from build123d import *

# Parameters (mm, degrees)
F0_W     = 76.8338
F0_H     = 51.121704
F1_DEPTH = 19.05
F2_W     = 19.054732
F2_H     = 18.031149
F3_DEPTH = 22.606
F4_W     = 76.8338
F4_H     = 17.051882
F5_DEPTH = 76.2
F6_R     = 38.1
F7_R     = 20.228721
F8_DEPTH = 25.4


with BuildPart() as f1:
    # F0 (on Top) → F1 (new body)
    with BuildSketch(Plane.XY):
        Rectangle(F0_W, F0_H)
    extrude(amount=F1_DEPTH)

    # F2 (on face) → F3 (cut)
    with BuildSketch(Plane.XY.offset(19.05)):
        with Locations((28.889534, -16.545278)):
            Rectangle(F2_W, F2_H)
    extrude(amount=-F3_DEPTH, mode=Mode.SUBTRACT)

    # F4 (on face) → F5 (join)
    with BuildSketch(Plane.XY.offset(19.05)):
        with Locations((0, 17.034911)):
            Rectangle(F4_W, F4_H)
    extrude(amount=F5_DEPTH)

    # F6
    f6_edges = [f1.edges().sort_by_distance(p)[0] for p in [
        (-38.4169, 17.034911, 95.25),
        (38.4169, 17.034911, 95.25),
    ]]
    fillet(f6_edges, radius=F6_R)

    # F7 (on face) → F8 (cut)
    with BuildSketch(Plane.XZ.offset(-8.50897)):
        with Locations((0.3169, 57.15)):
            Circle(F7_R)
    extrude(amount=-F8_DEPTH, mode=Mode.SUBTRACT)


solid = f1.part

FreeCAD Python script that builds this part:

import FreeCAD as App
import Part
import Sketcher
Q = App.Units.Quantity


def edges_at(feature, points):
    """Names of the edges that pass closest to the given points."""
    edges = feature.Shape.Edges
    near = lambda p: min(range(len(edges)), key=lambda i: edges[i].distToShape(Part.Vertex(*p))[0])
    return sorted({f"Edge{near(p) + 1}" for p in points})


def add_polygon(sketch, points):
    """Adds a closed chain of lines whose ends are joined by coincident constraints."""
    first, n = sketch.GeometryCount, len(points)
    for a, b in zip(points, points[1:] + points[:1]):
        sketch.addGeometry(Part.LineSegment(App.Vector(*a, 0), App.Vector(*b, 0)), False)
    for i in range(n):
        sketch.addConstraint(Sketcher.Constraint("Coincident", first + i, 2, first + (i + 1) % n, 1))

doc = App.newDocument("Part")
body = doc.addObject("PartDesign::Body", "Body")

# Sketch on XY plane
sketch1 = body.newObject("Sketcher::SketchObject", "Sketch")
sketch1.AttachmentSupport = (doc.getObject("XY_Plane"), [""])
sketch1.MapMode = "FlatFace"
add_polygon(sketch1, [(-38, 26), (-38, -26), (38, -26), (38, 26)])  # lines 0-3
sketch1.addConstraint([
    Sketcher.Constraint("Vertical", 0),
    Sketcher.Constraint("Horizontal", 1),
    Sketcher.Constraint("Vertical", 2),
    Sketcher.Constraint("Horizontal", 3),
    Sketcher.Constraint("Symmetric", 0, 2, 2, 2, -1, 1),
    Sketcher.Constraint("DistanceX", 1, 1, 1, 2, 76.8338),
    Sketcher.Constraint("DistanceY", 0, 2, 0, 1, 51.121704),
])
pad1 = body.newObject("PartDesign::Pad", "Pad")
pad1.Profile = sketch1
pad1.Length = Q("0.75 in")

# Sketch on XY plane
sketch2 = body.newObject("Sketcher::SketchObject", "Sketch001")
sketch2.AttachmentSupport = (doc.getObject("XY_Plane"), [""])
sketch2.MapMode = "FlatFace"
sketch2.AttachmentOffset = App.Placement(App.Vector(0, 0, 0.75 * 25.4), App.Rotation())
add_polygon(sketch2, [(19, -8), (19, -26), (38, -26), (38, -8)])  # lines 0-3
sketch2.addConstraint([
    Sketcher.Constraint("Vertical", 0),
    Sketcher.Constraint("Horizontal", 1),
    Sketcher.Constraint("Vertical", 2),
    Sketcher.Constraint("Horizontal", 3),
    Sketcher.Constraint("DistanceX", 1, 1, 1, 2, 19.054732),
    Sketcher.Constraint("DistanceY", 0, 2, 0, 1, 18.031149),
    Sketcher.Constraint("DistanceX", -1, 1, 1, 2, 38.4169),
    Sketcher.Constraint("DistanceY", 0, 2, -1, 1, 25.560852),
])
pocket1 = body.newObject("PartDesign::Pocket", "Pocket")
pocket1.Profile = sketch2
pocket1.Length = Q("0.89 in")

# Sketch on XY plane
sketch3 = body.newObject("Sketcher::SketchObject", "Sketch002")
sketch3.AttachmentSupport = (doc.getObject("XY_Plane"), [""])
sketch3.MapMode = "FlatFace"
sketch3.AttachmentOffset = App.Placement(App.Vector(0, 0, 0.75 * 25.4), App.Rotation())
add_polygon(sketch3, [(-38, 26), (-38, 9), (38, 9), (38, 26)])  # lines 0-3
sketch3.addConstraint([
    Sketcher.Constraint("Vertical", 0),
    Sketcher.Constraint("Horizontal", 1),
    Sketcher.Constraint("Vertical", 2),
    Sketcher.Constraint("Horizontal", 3),
    Sketcher.Constraint("DistanceX", 1, 1, 1, 2, 76.8338),
    Sketcher.Constraint("DistanceY", 0, 2, 0, 1, 17.051882),
    Sketcher.Constraint("DistanceX", 0, 2, -1, 1, 38.4169),
    Sketcher.Constraint("DistanceY", -1, 1, 0, 2, 8.50897),
])
pad2 = body.newObject("PartDesign::Pad", "Pad001")
pad2.Profile = sketch3
pad2.Length = Q("3 in")
doc.recompute()

fillet = body.newObject("PartDesign::Fillet", "Fillet")
fillet.Base = (pad2, edges_at(pad2, [(-38.417, 17.035, 95.25), (38.417, 17.035, 95.25)]))
fillet.Radius = Q("1.5 in")

# Sketch on XZ plane
sketch4 = body.newObject("Sketcher::SketchObject", "Sketch003")
sketch4.AttachmentSupport = (doc.getObject("XZ_Plane"), [""])
sketch4.MapMode = "FlatFace"
sketch4.AttachmentOffset = App.Placement(App.Vector(0, 0, -8.50897), App.Rotation())
sketch4.addGeometry(Part.Circle(App.Vector(0, 57, 0), App.Vector(0, 0, 1), 20), False)
sketch4.addConstraint([
    Sketcher.Constraint("DistanceY", -1, 1, 0, 3, Q("2.25 in")),
    Sketcher.Constraint("Diameter", 0, 40.457442),
    Sketcher.Constraint("DistanceX", -1, 1, 0, 3, 0.3169),
])
pocket2 = body.newObject("PartDesign::Pocket", "Pocket001")
pocket2.Profile = sketch4
pocket2.Length = Q("1 in")

doc.recompute()
